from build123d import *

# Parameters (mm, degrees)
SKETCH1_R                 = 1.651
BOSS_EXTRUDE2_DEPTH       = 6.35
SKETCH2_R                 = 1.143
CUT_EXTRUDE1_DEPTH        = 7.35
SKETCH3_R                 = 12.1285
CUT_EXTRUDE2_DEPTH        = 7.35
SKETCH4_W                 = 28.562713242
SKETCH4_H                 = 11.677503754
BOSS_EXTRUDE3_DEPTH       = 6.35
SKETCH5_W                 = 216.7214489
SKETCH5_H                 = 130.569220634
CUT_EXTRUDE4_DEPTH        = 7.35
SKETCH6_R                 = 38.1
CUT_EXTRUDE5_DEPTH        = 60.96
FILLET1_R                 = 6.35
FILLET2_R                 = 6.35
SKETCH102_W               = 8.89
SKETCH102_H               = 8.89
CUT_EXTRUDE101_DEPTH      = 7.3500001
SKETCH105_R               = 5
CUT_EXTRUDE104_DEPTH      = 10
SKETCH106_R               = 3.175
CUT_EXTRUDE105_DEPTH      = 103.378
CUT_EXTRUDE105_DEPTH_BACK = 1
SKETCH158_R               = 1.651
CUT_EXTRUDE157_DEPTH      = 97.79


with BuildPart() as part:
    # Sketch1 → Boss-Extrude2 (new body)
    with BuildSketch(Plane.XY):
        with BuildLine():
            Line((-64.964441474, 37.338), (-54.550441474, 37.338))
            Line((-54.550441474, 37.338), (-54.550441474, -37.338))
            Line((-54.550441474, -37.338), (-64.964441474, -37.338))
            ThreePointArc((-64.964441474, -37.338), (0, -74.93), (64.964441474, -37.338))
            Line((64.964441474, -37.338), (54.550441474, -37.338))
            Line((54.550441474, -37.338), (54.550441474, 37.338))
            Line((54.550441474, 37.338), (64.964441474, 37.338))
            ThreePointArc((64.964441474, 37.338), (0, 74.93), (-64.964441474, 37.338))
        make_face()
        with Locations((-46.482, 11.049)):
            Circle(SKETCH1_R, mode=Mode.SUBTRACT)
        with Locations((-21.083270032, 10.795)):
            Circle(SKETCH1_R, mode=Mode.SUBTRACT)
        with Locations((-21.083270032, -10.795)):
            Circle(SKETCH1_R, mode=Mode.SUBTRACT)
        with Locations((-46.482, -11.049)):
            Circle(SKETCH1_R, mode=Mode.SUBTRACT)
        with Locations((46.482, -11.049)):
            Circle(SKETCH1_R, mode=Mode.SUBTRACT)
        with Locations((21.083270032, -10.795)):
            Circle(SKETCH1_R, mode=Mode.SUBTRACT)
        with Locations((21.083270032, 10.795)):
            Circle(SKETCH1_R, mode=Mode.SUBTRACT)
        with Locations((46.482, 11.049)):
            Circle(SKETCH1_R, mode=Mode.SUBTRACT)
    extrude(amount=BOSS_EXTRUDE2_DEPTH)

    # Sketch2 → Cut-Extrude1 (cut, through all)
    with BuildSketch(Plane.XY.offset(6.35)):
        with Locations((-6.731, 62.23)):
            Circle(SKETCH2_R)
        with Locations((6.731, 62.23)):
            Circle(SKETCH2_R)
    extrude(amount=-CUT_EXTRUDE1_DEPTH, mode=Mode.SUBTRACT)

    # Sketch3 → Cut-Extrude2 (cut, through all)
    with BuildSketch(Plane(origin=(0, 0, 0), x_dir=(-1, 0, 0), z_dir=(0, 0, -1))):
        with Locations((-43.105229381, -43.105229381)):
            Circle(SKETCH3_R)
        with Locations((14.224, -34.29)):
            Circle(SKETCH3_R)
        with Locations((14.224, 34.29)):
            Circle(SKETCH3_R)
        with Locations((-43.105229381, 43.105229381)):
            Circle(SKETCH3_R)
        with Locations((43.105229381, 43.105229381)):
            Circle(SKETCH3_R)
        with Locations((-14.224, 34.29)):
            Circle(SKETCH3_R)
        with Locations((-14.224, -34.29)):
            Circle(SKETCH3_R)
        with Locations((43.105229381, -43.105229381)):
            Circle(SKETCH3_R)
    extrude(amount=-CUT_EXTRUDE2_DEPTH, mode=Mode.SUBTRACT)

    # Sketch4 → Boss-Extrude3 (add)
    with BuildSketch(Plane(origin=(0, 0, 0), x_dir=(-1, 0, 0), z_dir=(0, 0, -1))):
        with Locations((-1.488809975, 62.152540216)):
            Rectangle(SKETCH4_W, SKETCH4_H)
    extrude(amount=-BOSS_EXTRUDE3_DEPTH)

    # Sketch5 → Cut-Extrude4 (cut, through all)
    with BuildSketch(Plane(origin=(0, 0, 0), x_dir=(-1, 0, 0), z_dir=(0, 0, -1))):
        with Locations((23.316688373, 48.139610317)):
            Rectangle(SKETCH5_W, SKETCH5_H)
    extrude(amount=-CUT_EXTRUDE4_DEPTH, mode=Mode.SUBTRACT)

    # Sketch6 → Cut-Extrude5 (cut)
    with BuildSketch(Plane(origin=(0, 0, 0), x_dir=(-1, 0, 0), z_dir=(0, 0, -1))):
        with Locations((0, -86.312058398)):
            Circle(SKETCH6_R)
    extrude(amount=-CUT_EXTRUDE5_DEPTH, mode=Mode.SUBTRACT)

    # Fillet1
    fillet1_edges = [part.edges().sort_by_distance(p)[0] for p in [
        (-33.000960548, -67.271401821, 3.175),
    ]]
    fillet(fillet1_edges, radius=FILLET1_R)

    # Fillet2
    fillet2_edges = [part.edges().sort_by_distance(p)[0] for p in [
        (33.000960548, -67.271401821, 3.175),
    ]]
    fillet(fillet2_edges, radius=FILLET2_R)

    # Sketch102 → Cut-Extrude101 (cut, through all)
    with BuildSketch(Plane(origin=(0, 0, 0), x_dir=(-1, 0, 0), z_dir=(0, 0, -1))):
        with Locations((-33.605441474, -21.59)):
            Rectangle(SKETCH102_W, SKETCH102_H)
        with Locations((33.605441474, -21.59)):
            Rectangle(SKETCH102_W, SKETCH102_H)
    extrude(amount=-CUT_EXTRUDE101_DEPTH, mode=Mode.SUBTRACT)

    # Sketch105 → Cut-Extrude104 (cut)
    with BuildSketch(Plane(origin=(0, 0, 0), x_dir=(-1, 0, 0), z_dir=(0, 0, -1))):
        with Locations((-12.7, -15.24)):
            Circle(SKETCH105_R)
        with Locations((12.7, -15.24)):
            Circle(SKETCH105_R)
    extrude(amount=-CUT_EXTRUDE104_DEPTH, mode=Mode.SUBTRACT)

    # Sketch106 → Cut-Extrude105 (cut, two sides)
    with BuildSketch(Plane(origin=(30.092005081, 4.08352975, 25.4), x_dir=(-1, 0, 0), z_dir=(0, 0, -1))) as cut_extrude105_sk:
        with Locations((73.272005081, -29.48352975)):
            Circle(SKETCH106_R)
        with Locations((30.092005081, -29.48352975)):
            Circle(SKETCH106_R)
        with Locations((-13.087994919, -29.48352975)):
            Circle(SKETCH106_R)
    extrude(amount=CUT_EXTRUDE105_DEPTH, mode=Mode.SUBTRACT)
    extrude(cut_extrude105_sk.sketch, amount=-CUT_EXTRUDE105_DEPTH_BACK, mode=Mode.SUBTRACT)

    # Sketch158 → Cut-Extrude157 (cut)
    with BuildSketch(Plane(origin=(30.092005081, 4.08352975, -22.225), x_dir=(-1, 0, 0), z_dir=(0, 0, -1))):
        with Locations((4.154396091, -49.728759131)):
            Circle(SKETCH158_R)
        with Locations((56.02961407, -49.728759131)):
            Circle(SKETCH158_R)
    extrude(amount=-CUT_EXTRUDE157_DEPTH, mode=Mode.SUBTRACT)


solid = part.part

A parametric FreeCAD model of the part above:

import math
import FreeCAD as App
import Part
import Sketcher

V = App.Vector
Q = App.Units.Quantity


def edges_at(feature, points):
    """Names of the edges that pass closest to the given points."""
    edges = feature.Shape.Edges
    near = lambda p: min(range(len(edges)), key=lambda i: edges[i].distToShape(Part.Vertex(*p))[0])
    return sorted({f"Edge{near(p) + 1}" for p in points})

doc = App.newDocument("Part")
params = doc.addObject("Spreadsheet::Sheet", "Params")
for row, (alias, value) in enumerate([
    ("sketch1_diameter", "0.13 in"),
    ("sketch1_radius", "2.95 in"),
    ("sketch1_width", "0.41 in"),
    ("sketch1_height", "2.94 in"),
    ("pad1_length", "0.25 in"),
    ("sketch2_diameter", "0.09 in"),
    ("sketch3_diameter", "0.955 in"),
    ("pad2_length", "0.25 in"),
    ("sketch6_diameter", "3 in"),
    ("pocket4_length", "2.4 in"),
    ("fillet_radius", "0.25 in"),
    ("fillet2_radius", "0.25 in"),
    ("sketch7_width", "0.35 in"),
    ("pocket6_length", "10 mm"),
    ("sketch9_diameter", "0.25 in"),
    ("sketch10_diameter", "0.13 in"),
    ("pocket8_length", "3.85 in"),
], start=1):
    params.set(f"A{row}", alias)
    params.set(f"B{row}", "=" + value)
    params.setAlias(f"B{row}", alias)

body = doc.addObject("PartDesign::Body", "Body")

sketch1 = body.newObject("Sketcher::SketchObject", "Sketch")
sketch1.AttachmentSupport = (doc.getObject("XY_Plane"), [""])
sketch1.MapMode = "FlatFace"
sketch1.addGeometry(Part.LineSegment(V(-64.964441, 37.338, 0), V(-54.550441, 37.338, 0)), False)
sketch1.addGeometry(Part.LineSegment(V(-54.550441, 37.338, 0), V(-54.550441, -37.338, 0)), False)
sketch1.addGeometry(Part.LineSegment(V(-54.550441, -37.338, 0), V(-64.964441, -37.338, 0)), False)
sketch1.addGeometry(Part.ArcOfCircle(Part.Circle(V(0, 0, 0), V(0, 0, 1), 74.93), math.radians(-150.112071), math.radians(-29.887929)), False)
sketch1.addGeometry(Part.LineSegment(V(64.964441, -37.338, 0), V(54.550441, -37.338, 0)), False)
sketch1.addGeometry(Part.LineSegment(V(54.550441, -37.338, 0), V(54.550441, 37.338, 0)), False)
sketch1.addGeometry(Part.LineSegment(V(54.550441, 37.338, 0), V(64.964441, 37.338, 0)), False)
sketch1.addGeometry(Part.ArcOfCircle(Part.Circle(V(0, 0, 0), V(0, 0, 1), 74.93), math.radians(29.887929), math.radians(150.112071)), False)
sketch1.addGeometry(Part.Circle(V(-46.482, -11.049, 0), V(0, 0, 1), 1.651), False)
sketch1.addGeometry(Part.Circle(V(-21.08327, -10.795, 0), V(0, 0, 1), 1.651), False)
sketch1.addGeometry(Part.Circle(V(21.08327, -10.795, 0), V(0, 0, 1), 1.651), False)
sketch1.addGeometry(Part.Circle(V(46.482, -11.049, 0), V(0, 0, 1), 1.651), False)
sketch1.addGeometry(Part.Circle(V(-46.482, 11.049, 0), V(0, 0, 1), 1.651), False)
sketch1.addGeometry(Part.Circle(V(-21.08327, 10.795, 0), V(0, 0, 1), 1.651), False)
sketch1.addGeometry(Part.Circle(V(21.08327, 10.795, 0), V(0, 0, 1), 1.651), False)
sketch1.addGeometry(Part.Circle(V(46.482, 11.049, 0), V(0, 0, 1), 1.651), False)
sketch1.addConstraint(Sketcher.Constraint("Coincident", 0, 2, 1, 1))
sketch1.addConstraint(Sketcher.Constraint("Coincident", 1, 2, 2, 1))
sketch1.addConstraint(Sketcher.Constraint("Coincident", 2, 2, 3, 1))
sketch1.addConstraint(Sketcher.Constraint("Coincident", 3, 2, 4, 1))
sketch1.addConstraint(Sketcher.Constraint("Coincident", 4, 2, 5, 1))
sketch1.addConstraint(Sketcher.Constraint("Coincident", 5, 2, 6, 1))
sketch1.addConstraint(Sketcher.Constraint("Coincident", 6, 2, 7, 1))
sketch1.addConstraint(Sketcher.Constraint("Coincident", 7, 2, 0, 1))
sketch1.addConstraint(Sketcher.Constraint("Horizontal", 0))
sketch1.addConstraint(Sketcher.Constraint("Vertical", 1))
sketch1.addConstraint(Sketcher.Constraint("Horizontal", 2))
sketch1.addConstraint(Sketcher.Constraint("Horizontal", 4))
sketch1.addConstraint(Sketcher.Constraint("Vertical", 5))
sketch1.addConstraint(Sketcher.Constraint("Horizontal", 6))
sketch1.addConstraint(Sketcher.Constraint("Coincident", 3, 3, -1, 1))
sketch1.addConstraint(Sketcher.Constraint("Coincident", 7, 3, -1, 1))
sketch1.addConstraint(Sketcher.Constraint("Equal", 3, 7))
sketch1.addConstraint(Sketcher.Constraint("Equal", 8, 9))
sketch1.addConstraint(Sketcher.Constraint("Equal", 9, 10))
sketch1.addConstraint(Sketcher.Constraint("Equal", 10, 11))
sketch1.addConstraint(Sketcher.Constraint("Equal", 11, 12))
sketch1.addConstraint(Sketcher.Constraint("Equal", 12, 13))
sketch1.addConstraint(Sketcher.Constraint("Equal", 13, 14))
sketch1.addConstraint(Sketcher.Constraint("Equal", 14, 15))
sketch1.addConstraint(Sketcher.Constraint("Symmetric", 11, 3, 12, 3, -1, 1))
sketch1.addConstraint(Sketcher.Constraint("Symmetric", 10, 3, 13, 3, -1, 1))
sketch1.addConstraint(Sketcher.Constraint("Symmetric", 9, 3, 14, 3, -1, 1))
sketch1.addConstraint(Sketcher.Constraint("Symmetric", 8, 3, 15, 3, -1, 1))
sketch1.addConstraint(Sketcher.Constraint("Symmetric", 0, 2, 4, 2, -1, 1))
sketch1.addConstraint(Sketcher.Constraint("Symmetric", 9, 3, 10, 3, -2))
sketch1.addConstraint(Sketcher.Constraint("Symmetric", 8, 3, 11, 3, -2))
sketch1.addConstraint(Sketcher.Constraint("Horizontal", 2, 2, 3, 2))
sketch1.addConstraint(Sketcher.Constraint("Horizontal", 0, 2, 5, 2))
sketch1.addConstraint(Sketcher.Constraint("Diameter", 8, Q("0.13 in")))
sketch1.addConstraint(Sketcher.Constraint("Radius", 3, Q("2.95 in")))
sketch1.addConstraint(Sketcher.Constraint("DistanceX", 0, 1, 0, 2, Q("0.41 in")))
sketch1.addConstraint(Sketcher.Constraint("DistanceY", 1, 2, 1, 1, Q("2.94 in")))
sketch1.addConstraint(Sketcher.Constraint("DistanceX", 8, 3, -1, 1, Q("1.83 in")))
sketch1.addConstraint(Sketcher.Constraint("DistanceY", 8, 3, 9, 3, Q("0.01 in")))
sketch1.addConstraint(Sketcher.Constraint("DistanceY", 8, 3, 12, 3, Q("0.87 in")))
sketch1.addConstraint(Sketcher.Constraint("DistanceX", 9, 3, 10, 3, Q("1.6601 in")))
sketch1.setExpression("Constraints[33]", "Params.sketch1_diameter")
sketch1.setExpression("Constraints[34]", "Params.sketch1_radius")
sketch1.setExpression("Constraints[35]", "Params.sketch1_width")
sketch1.setExpression("Constraints[36]", "Params.sketch1_height")
pad1 = body.newObject("PartDesign::Pad", "Pad")
pad1.Profile = sketch1
pad1.setExpression("Length", "Params.pad1_length")

sketch2 = body.newObject("Sketcher::SketchObject", "Sketch001")
sketch2.AttachmentSupport = (doc.getObject("XY_Plane"), [""])
sketch2.MapMode = "FlatFace"
sketch2.AttachmentOffset = App.Placement(V(0, 0, 0.25 * 25.4), App.Rotation())
sketch2.addGeometry(Part.Circle(V(-6.731, 62.23, 0), V(0, 0, 1), 1.143), False)
sketch2.addGeometry(Part.Circle(V(6.731, 62.23, 0), V(0, 0, 1), 1.143), False)
sketch2.addConstraint(Sketcher.Constraint("Equal", 0, 1))
sketch2.addConstraint(Sketcher.Constraint("Symmetric", 0, 3, 1, 3, -2))
sketch2.addConstraint(Sketcher.Constraint("Diameter", 0, Q("0.09 in")))
sketch2.addConstraint(Sketcher.Constraint("DistanceY", -1, 1, 0, 3, Q("2.45 in")))
sketch2.addConstraint(Sketcher.Constraint("DistanceX", 0, 3, 1, 3, Q("0.53 in")))
sketch2.setExpression("Constraints[2]", "Params.sketch2_diameter")
pocket1 = body.newObject("PartDesign::Pocket", "Pocket")
pocket1.Profile = sketch2
pocket1.Type = "ThroughAll"

sketch3 = body.newObject("Sketcher::SketchObject", "Sketch002")
sketch3.AttachmentSupport = (doc.getObject("XY_Plane"), [""])
sketch3.MapMode = "FlatFace"
sketch3.addGeometry(Part.Circle(V(43.105229, -43.105229, 0), V(0, 0, 1), 12.1285), False)
sketch3.addGeometry(Part.Circle(V(-14.224, -34.29, 0), V(0, 0, 1), 12.1285), False)
sketch3.addGeometry(Part.Circle(V(-14.224, 34.29, 0), V(0, 0, 1), 12.1285), False)
sketch3.addGeometry(Part.Circle(V(43.105229, 43.105229, 0), V(0, 0, 1), 12.1285), False)
sketch3.addGeometry(Part.Circle(V(-43.105229, 43.105229, 0), V(0, 0, 1), 12.1285), False)
sketch3.addGeometry(Part.Circle(V(14.224, 34.29, 0), V(0, 0, 1), 12.1285), False)
sketch3.addGeometry(Part.Circle(V(14.224, -34.29, 0), V(0, 0, 1), 12.1285), False)
sketch3.addGeometry(Part.Circle(V(-43.105229, -43.105229, 0), V(0, 0, 1), 12.1285), False)
sketch3.addConstraint(Sketcher.Constraint("Equal", 0, 1))
sketch3.addConstraint(Sketcher.Constraint("Equal", 1, 2))
sketch3.addConstraint(Sketcher.Constraint("Equal", 2, 3))
sketch3.addConstraint(Sketcher.Constraint("Equal", 3, 4))
sketch3.addConstraint(Sketcher.Constraint("Equal", 4, 5))
sketch3.addConstraint(Sketcher.Constraint("Equal", 5, 6))
sketch3.addConstraint(Sketcher.Constraint("Equal", 6, 7))
sketch3.addConstraint(Sketcher.Constraint("Symmetric", 0, 3, 4, 3, -1, 1))
sketch3.addConstraint(Sketcher.Constraint("Symmetric", 1, 3, 5, 3, -1, 1))
sketch3.addConstraint(Sketcher.Constraint("Symmetric", 2, 3, 6, 3, -1, 1))
sketch3.addConstraint(Sketcher.Constraint("Symmetric", 3, 3, 7, 3, -1, 1))
sketch3.addConstraint(Sketcher.Constraint("Symmetric", 3, 3, 4, 3, -2))
sketch3.addConstraint(Sketcher.Constraint("Symmetric", 2, 3, 5, 3, -2))
sketch3.addConstraint(Sketcher.Constraint("Diameter", 0, Q("0.955 in")))
sketch3.addConstraint(Sketcher.Constraint("DistanceY", 1, 3, 2, 3, Q("2.7 in")))
sketch3.addConstraint(Sketcher.Constraint("DistanceX", 1, 3, -1, 1, Q("0.56 in")))
sketch3.addConstraint(Sketcher.Constraint("DistanceX", -1, 1, 0, 3, 43.105229))
sketch3.addConstraint(Sketcher.Constraint("DistanceY", 0, 3, -1, 1, 43.105229))
sketch3.setExpression("Constraints[13]", "Params.sketch3_diameter")
pocket2 = body.newObject("PartDesign::Pocket", "Pocket001")
pocket2.Profile = sketch3
pocket2.Type = "ThroughAll"
pocket2.Reversed = True

sketch4 = body.newObject("Sketcher::SketchObject", "Sketch003")
sketch4.AttachmentSupport = (doc.getObject("XY_Plane"), [""])
sketch4.MapMode = "FlatFace"
sketch4.addGeometry(Part.LineSegment(V(15.770167, 67.991292, 0), V(15.770167, 56.313788, 0)), False)
sketch4.addGeometry(Part.LineSegment(V(15.770167, 56.313788, 0), V(-12.792547, 56.313788, 0)), False)
sketch4.addGeometry(Part.LineSegment(V(-12.792547, 56.313788, 0), V(-12.792547, 67.991292, 0)), False)
sketch4.addGeometry(Part.LineSegment(V(-12.792547, 67.991292, 0), V(15.770167, 67.991292, 0)), False)
sketch4.addConstraint(Sketcher.Constraint("Coincident", 0, 2, 1, 1))
sketch4.addConstraint(Sketcher.Constraint("Coincident", 1, 2, 2, 1))
sketch4.addConstraint(Sketcher.Constraint("Coincident", 2, 2, 3, 1))
sketch4.addConstraint(Sketcher.Constraint("Coincident", 3, 2, 0, 1))
sketch4.addConstraint(Sketcher.Constraint("Vertical", 0))
sketch4.addConstraint(Sketcher.Constraint("Horizontal", 1))
sketch4.addConstraint(Sketcher.Constraint("Vertical", 2))
sketch4.addConstraint(Sketcher.Constraint("Horizontal", 3))
sketch4.addConstraint(Sketcher.Constraint("DistanceX", 1, 2, 1, 1, 28.562713))
sketch4.addConstraint(Sketcher.Constraint("DistanceY", 0, 2, 0, 1, 11.677504))
sketch4.addConstraint(Sketcher.Constraint("DistanceY", -1, 1, 0, 2, 56.313788))
sketch4.addConstraint(Sketcher.Constraint("DistanceX", -1, 1, 0, 2, 15.770167))
pad2 = body.newObject("PartDesign::Pad", "Pad001")
pad2.Profile = sketch4
pad2.setExpression("Length", "Params.pad2_length")

sketch5 = body.newObject("Sketcher::SketchObject", "Sketch004")
sketch5.AttachmentSupport = (doc.getObject("XY_Plane"), [""])
sketch5.MapMode = "FlatFace"
sketch5.addGeometry(Part.LineSegment(V(85.044036, 113.424221, 0), V(85.044036, -17.145, 0)), False)
sketch5.addGeometry(Part.LineSegment(V(85.044036, -17.145, 0), V(-131.677413, -17.145, 0)), False)
sketch5.addGeometry(Part.LineSegment(V(-131.677413, -17.145, 0), V(-131.677413, 113.424221, 0)), False)
sketch5.addGeometry(Part.LineSegment(V(-131.677413, 113.424221, 0), V(85.044036, 113.424221, 0)), False)
sketch5.addConstraint(Sketcher.Constraint("Coincident", 0, 2, 1, 1))
sketch5.addConstraint(Sketcher.Constraint("Coincident", 1, 2, 2, 1))
sketch5.addConstraint(Sketcher.Constraint("Coincident", 2, 2, 3, 1))
sketch5.addConstraint(Sketcher.Constraint("Coincident", 3, 2, 0, 1))
sketch5.addConstraint(Sketcher.Constraint("Vertical", 0))
sketch5.addConstraint(Sketcher.Constraint("Horizontal", 1))
sketch5.addConstraint(Sketcher.Constraint("Vertical", 2))
sketch5.addConstraint(Sketcher.Constraint("Horizontal", 3))
sketch5.addConstraint(Sketcher.Constraint("DistanceY", 0, 2, -1, 1, Q("0.675 in")))
sketch5.addConstraint(Sketcher.Constraint("DistanceX", 1, 2, 1, 1, 216.721449))
sketch5.addConstraint(Sketcher.Constraint("DistanceY", 0, 2, 0, 1, 130.569221))
sketch5.addConstraint(Sketcher.Constraint("DistanceX", -1, 1, 0, 2, 85.044036))
pocket3 = body.newObject("PartDesign::Pocket", "Pocket002")
pocket3.Profile = sketch5
pocket3.Type = "ThroughAll"
pocket3.Reversed = True

sketch6 = body.newObject("Sketcher::SketchObject", "Sketch005")
sketch6.AttachmentSupport = (doc.getObject("XY_Plane"), [""])
sketch6.MapMode = "FlatFace"
sketch6.addGeometry(Part.Circle(V(0, -86.312058, 0), V(0, 0, 1), 38.1), False)
sketch6.addConstraint(Sketcher.Constraint("PointOnObject", 0, 3, -2))
sketch6.addConstraint(Sketcher.Constraint("Diameter", 0, Q("3 in")))
sketch6.addConstraint(Sketcher.Constraint("DistanceY", 0, 3, -1, 1, 86.312058))
sketch6.setExpression("Constraints[1]", "Params.sketch6_diameter")
pocket4 = body.newObject("PartDesign::Pocket", "Pocket003")
pocket4.Profile = sketch6
pocket4.setExpression("Length", "Params.pocket4_length")
pocket4.Reversed = True
doc.recompute()

fillet = body.newObject("PartDesign::Fillet", "Fillet")
fillet.Base = (pocket4, edges_at(pocket4, [(-33.001, -67.271, 3.175)]))
fillet.setExpression("Radius", "Params.fillet_radius")
doc.recompute()

fillet2 = body.newObject("PartDesign::Fillet", "Fillet001")
fillet2.Base = (fillet, edges_at(fillet, [(33.001, -67.271, 3.175)]))
fillet2.setExpression("Radius", "Params.fillet2_radius")

sketch7 = body.newObject("Sketcher::SketchObject", "Sketch006")
sketch7.AttachmentSupport = (doc.getObject("XY_Plane"), [""])
sketch7.MapMode = "FlatFace"
sketch7.addGeometry(Part.LineSegment(V(38.050441, -17.145, 0), V(38.050441, -26.035, 0)), False)
sketch7.addGeometry(Part.LineSegment(V(38.050441, -26.035, 0), V(29.160441, -26.035, 0)), False)
sketch7.addGeometry(Part.LineSegment(V(29.160441, -26.035, 0), V(29.160441, -17.145, 0)), False)
sketch7.addGeometry(Part.LineSegment(V(29.160441, -17.145, 0), V(38.050441, -17.145, 0)), False)
sketch7.addGeometry(Part.LineSegment(V(-29.160441, -17.145, 0), V(-29.160441, -26.035, 0)), False)
sketch7.addGeometry(Part.LineSegment(V(-29.160441, -26.035, 0), V(-38.050441, -26.035, 0)), False)
sketch7.addGeometry(Part.LineSegment(V(-38.050441, -26.035, 0), V(-38.050441, -17.145, 0)), False)
sketch7.addGeometry(Part.LineSegment(V(-38.050441, -17.145, 0), V(-29.160441, -17.145, 0)), False)
sketch7.addConstraint(Sketcher.Constraint("Coincident", 0, 2, 1, 1))
sketch7.addConstraint(Sketcher.Constraint("Coincident", 1, 2, 2, 1))
sketch7.addConstraint(Sketcher.Constraint("Coincident", 2, 2, 3, 1))
sketch7.addConstraint(Sketcher.Constraint("Coincident", 3, 2, 0, 1))
sketch7.addConstraint(Sketcher.Constraint("Coincident", 4, 2, 5, 1))
sketch7.addConstraint(Sketcher.Constraint("Coincident", 5, 2, 6, 1))
sketch7.addConstraint(Sketcher.Constraint("Coincident", 6, 2, 7, 1))
sketch7.addConstraint(Sketcher.Constraint("Coincident", 7, 2, 4, 1))
sketch7.addConstraint(Sketcher.Constraint("Vertical", 0))
sketch7.addConstraint(Sketcher.Constraint("Horizontal", 1))
sketch7.addConstraint(Sketcher.Constraint("Vertical", 2))
sketch7.addConstraint(Sketcher.Constraint("Horizontal", 3))
sketch7.addConstraint(Sketcher.Constraint("Vertical", 4))
sketch7.addConstraint(Sketcher.Constraint("Horizontal", 5))
sketch7.addConstraint(Sketcher.Constraint("Vertical", 6))
sketch7.addConstraint(Sketcher.Constraint("Horizontal", 7))
sketch7.addConstraint(Sketcher.Constraint("Symmetric", 1, 2, 4, 2, -2))
sketch7.addConstraint(Sketcher.Constraint("Symmetric", 3, 2, 6, 2, -2))
sketch7.addConstraint(Sketcher.Constraint("Equal", 7, 0))
sketch7.addConstraint(Sketcher.Constraint("DistanceX", 1, 2, 1, 1, Q("0.35 in")))
sketch7.addConstraint(Sketcher.Constraint("DistanceY", 0, 2, -1, 1, Q("1.025 in")))
sketch7.addConstraint(Sketcher.Constraint("DistanceX", -1, 1, 0, 2, 38.050441))
sketch7.setExpression("Constraints[19]", "Params.sketch7_width")
pocket5 = body.newObject("PartDesign::Pocket", "Pocket004")
pocket5.Profile = sketch7
pocket5.Type = "ThroughAll"
pocket5.Reversed = True

sketch8 = body.newObject("Sketcher::SketchObject", "Sketch007")
sketch8.AttachmentSupport = (doc.getObject("XY_Plane"), [""])
sketch8.MapMode = "FlatFace"
sketch8.addGeometry(Part.Circle(V(12.7, -15.24, 0), V(0, 0, 1), 5), False)
sketch8.addGeometry(Part.Circle(V(-12.7, -15.24, 0), V(0, 0, 1), 5), False)
sketch8.addConstraint(Sketcher.Constraint("Equal", 0, 1))
sketch8.addConstraint(Sketcher.Constraint("Symmetric", 0, 3, 1, 3, -2))
sketch8.addConstraint(Sketcher.Constraint("DistanceX", 1, 3, 0, 3, Q("1 in")))
sketch8.addConstraint(Sketcher.Constraint("DistanceY", 0, 3, -1, 1, Q("0.6 in")))
sketch8.addConstraint(Sketcher.Constraint("Diameter", 0, 10.0))
pocket6 = body.newObject("PartDesign::Pocket", "Pocket005")
pocket6.Profile = sketch8
pocket6.setExpression("Length", "Params.pocket6_length")
pocket6.Reversed = True

sketch9 = body.newObject("Sketcher::SketchObject", "Sketch008")
sketch9.AttachmentSupport = (doc.getObject("XY_Plane"), [""])
sketch9.MapMode = "FlatFace"
sketch9.AttachmentOffset = App.Placement(V(0, 0, 1 * 25.4), App.Rotation())
sketch9.addGeometry(Part.Circle(V(-43.18, -25.4, 0), V(0, 0, 1), 3.175), False)
sketch9.addGeometry(Part.Circle(V(0, -25.4, 0), V(0, 0, 1), 3.175), False)
sketch9.addGeometry(Part.Circle(V(43.18, -25.4, 0), V(0, 0, 1), 3.175), False)
sketch9.addConstraint(Sketcher.Constraint("Equal", 0, 1))
sketch9.addConstraint(Sketcher.Constraint("Equal", 1, 2))
sketch9.addConstraint(Sketcher.Constraint("Symmetric", 0, 3, 2, 3, -2))
sketch9.addConstraint(Sketcher.Constraint("PointOnObject", 1, 3, -2))
sketch9.addConstraint(Sketcher.Constraint("Horizontal", 0, 3, 1, 3))
sketch9.addConstraint(Sketcher.Constraint("Diameter", 0, Q("0.25 in")))
sketch9.addConstraint(Sketcher.Constraint("DistanceY", 0, 3, -1, 1, Q("1 in")))
sketch9.addConstraint(Sketcher.Constraint("DistanceX", 0, 3, -1, 1, Q("1.7 in")))
sketch9.setExpression("Constraints[5]", "Params.sketch9_diameter")
pocket7 = body.newObject("PartDesign::Pocket", "Pocket006")
pocket7.Profile = sketch9
pocket7.Type = "ThroughAll"
pocket7.Midplane = True

sketch10 = body.newObject("Sketcher::SketchObject", "Sketch009")
sketch10.AttachmentSupport = (doc.getObject("XY_Plane"), [""])
sketch10.MapMode = "FlatFace"
sketch10.AttachmentOffset = App.Placement(V(0, 0, -0.875 * 25.4), App.Rotation())
sketch10.addGeometry(Part.Circle(V(25.937609, -45.645229, 0), V(0, 0, 1), 1.651), False)
sketch10.addGeometry(Part.Circle(V(-25.937609, -45.645229, 0), V(0, 0, 1), 1.651), False)
sketch10.addConstraint(Sketcher.Constraint("Equal", 0, 1))
sketch10.addConstraint(Sketcher.Constraint("Symmetric", 0, 3, 1, 3, -2))
sketch10.addConstraint(Sketcher.Constraint("Diameter", 0, Q("0.13 in")))
sketch10.addConstraint(Sketcher.Constraint("DistanceX", -1, 1, 0, 3, 25.937609))
sketch10.addConstraint(Sketcher.Constraint("DistanceY", 0, 3, -1, 1, 45.645229))
sketch10.setExpression("Constraints[2]", "Params.sketch10_diameter")
pocket8 = body.newObject("PartDesign::Pocket", "Pocket007")
pocket8.Profile = sketch10
pocket8.setExpression("Length", "Params.pocket8_length")
pocket8.Reversed = True

doc.recompute()
